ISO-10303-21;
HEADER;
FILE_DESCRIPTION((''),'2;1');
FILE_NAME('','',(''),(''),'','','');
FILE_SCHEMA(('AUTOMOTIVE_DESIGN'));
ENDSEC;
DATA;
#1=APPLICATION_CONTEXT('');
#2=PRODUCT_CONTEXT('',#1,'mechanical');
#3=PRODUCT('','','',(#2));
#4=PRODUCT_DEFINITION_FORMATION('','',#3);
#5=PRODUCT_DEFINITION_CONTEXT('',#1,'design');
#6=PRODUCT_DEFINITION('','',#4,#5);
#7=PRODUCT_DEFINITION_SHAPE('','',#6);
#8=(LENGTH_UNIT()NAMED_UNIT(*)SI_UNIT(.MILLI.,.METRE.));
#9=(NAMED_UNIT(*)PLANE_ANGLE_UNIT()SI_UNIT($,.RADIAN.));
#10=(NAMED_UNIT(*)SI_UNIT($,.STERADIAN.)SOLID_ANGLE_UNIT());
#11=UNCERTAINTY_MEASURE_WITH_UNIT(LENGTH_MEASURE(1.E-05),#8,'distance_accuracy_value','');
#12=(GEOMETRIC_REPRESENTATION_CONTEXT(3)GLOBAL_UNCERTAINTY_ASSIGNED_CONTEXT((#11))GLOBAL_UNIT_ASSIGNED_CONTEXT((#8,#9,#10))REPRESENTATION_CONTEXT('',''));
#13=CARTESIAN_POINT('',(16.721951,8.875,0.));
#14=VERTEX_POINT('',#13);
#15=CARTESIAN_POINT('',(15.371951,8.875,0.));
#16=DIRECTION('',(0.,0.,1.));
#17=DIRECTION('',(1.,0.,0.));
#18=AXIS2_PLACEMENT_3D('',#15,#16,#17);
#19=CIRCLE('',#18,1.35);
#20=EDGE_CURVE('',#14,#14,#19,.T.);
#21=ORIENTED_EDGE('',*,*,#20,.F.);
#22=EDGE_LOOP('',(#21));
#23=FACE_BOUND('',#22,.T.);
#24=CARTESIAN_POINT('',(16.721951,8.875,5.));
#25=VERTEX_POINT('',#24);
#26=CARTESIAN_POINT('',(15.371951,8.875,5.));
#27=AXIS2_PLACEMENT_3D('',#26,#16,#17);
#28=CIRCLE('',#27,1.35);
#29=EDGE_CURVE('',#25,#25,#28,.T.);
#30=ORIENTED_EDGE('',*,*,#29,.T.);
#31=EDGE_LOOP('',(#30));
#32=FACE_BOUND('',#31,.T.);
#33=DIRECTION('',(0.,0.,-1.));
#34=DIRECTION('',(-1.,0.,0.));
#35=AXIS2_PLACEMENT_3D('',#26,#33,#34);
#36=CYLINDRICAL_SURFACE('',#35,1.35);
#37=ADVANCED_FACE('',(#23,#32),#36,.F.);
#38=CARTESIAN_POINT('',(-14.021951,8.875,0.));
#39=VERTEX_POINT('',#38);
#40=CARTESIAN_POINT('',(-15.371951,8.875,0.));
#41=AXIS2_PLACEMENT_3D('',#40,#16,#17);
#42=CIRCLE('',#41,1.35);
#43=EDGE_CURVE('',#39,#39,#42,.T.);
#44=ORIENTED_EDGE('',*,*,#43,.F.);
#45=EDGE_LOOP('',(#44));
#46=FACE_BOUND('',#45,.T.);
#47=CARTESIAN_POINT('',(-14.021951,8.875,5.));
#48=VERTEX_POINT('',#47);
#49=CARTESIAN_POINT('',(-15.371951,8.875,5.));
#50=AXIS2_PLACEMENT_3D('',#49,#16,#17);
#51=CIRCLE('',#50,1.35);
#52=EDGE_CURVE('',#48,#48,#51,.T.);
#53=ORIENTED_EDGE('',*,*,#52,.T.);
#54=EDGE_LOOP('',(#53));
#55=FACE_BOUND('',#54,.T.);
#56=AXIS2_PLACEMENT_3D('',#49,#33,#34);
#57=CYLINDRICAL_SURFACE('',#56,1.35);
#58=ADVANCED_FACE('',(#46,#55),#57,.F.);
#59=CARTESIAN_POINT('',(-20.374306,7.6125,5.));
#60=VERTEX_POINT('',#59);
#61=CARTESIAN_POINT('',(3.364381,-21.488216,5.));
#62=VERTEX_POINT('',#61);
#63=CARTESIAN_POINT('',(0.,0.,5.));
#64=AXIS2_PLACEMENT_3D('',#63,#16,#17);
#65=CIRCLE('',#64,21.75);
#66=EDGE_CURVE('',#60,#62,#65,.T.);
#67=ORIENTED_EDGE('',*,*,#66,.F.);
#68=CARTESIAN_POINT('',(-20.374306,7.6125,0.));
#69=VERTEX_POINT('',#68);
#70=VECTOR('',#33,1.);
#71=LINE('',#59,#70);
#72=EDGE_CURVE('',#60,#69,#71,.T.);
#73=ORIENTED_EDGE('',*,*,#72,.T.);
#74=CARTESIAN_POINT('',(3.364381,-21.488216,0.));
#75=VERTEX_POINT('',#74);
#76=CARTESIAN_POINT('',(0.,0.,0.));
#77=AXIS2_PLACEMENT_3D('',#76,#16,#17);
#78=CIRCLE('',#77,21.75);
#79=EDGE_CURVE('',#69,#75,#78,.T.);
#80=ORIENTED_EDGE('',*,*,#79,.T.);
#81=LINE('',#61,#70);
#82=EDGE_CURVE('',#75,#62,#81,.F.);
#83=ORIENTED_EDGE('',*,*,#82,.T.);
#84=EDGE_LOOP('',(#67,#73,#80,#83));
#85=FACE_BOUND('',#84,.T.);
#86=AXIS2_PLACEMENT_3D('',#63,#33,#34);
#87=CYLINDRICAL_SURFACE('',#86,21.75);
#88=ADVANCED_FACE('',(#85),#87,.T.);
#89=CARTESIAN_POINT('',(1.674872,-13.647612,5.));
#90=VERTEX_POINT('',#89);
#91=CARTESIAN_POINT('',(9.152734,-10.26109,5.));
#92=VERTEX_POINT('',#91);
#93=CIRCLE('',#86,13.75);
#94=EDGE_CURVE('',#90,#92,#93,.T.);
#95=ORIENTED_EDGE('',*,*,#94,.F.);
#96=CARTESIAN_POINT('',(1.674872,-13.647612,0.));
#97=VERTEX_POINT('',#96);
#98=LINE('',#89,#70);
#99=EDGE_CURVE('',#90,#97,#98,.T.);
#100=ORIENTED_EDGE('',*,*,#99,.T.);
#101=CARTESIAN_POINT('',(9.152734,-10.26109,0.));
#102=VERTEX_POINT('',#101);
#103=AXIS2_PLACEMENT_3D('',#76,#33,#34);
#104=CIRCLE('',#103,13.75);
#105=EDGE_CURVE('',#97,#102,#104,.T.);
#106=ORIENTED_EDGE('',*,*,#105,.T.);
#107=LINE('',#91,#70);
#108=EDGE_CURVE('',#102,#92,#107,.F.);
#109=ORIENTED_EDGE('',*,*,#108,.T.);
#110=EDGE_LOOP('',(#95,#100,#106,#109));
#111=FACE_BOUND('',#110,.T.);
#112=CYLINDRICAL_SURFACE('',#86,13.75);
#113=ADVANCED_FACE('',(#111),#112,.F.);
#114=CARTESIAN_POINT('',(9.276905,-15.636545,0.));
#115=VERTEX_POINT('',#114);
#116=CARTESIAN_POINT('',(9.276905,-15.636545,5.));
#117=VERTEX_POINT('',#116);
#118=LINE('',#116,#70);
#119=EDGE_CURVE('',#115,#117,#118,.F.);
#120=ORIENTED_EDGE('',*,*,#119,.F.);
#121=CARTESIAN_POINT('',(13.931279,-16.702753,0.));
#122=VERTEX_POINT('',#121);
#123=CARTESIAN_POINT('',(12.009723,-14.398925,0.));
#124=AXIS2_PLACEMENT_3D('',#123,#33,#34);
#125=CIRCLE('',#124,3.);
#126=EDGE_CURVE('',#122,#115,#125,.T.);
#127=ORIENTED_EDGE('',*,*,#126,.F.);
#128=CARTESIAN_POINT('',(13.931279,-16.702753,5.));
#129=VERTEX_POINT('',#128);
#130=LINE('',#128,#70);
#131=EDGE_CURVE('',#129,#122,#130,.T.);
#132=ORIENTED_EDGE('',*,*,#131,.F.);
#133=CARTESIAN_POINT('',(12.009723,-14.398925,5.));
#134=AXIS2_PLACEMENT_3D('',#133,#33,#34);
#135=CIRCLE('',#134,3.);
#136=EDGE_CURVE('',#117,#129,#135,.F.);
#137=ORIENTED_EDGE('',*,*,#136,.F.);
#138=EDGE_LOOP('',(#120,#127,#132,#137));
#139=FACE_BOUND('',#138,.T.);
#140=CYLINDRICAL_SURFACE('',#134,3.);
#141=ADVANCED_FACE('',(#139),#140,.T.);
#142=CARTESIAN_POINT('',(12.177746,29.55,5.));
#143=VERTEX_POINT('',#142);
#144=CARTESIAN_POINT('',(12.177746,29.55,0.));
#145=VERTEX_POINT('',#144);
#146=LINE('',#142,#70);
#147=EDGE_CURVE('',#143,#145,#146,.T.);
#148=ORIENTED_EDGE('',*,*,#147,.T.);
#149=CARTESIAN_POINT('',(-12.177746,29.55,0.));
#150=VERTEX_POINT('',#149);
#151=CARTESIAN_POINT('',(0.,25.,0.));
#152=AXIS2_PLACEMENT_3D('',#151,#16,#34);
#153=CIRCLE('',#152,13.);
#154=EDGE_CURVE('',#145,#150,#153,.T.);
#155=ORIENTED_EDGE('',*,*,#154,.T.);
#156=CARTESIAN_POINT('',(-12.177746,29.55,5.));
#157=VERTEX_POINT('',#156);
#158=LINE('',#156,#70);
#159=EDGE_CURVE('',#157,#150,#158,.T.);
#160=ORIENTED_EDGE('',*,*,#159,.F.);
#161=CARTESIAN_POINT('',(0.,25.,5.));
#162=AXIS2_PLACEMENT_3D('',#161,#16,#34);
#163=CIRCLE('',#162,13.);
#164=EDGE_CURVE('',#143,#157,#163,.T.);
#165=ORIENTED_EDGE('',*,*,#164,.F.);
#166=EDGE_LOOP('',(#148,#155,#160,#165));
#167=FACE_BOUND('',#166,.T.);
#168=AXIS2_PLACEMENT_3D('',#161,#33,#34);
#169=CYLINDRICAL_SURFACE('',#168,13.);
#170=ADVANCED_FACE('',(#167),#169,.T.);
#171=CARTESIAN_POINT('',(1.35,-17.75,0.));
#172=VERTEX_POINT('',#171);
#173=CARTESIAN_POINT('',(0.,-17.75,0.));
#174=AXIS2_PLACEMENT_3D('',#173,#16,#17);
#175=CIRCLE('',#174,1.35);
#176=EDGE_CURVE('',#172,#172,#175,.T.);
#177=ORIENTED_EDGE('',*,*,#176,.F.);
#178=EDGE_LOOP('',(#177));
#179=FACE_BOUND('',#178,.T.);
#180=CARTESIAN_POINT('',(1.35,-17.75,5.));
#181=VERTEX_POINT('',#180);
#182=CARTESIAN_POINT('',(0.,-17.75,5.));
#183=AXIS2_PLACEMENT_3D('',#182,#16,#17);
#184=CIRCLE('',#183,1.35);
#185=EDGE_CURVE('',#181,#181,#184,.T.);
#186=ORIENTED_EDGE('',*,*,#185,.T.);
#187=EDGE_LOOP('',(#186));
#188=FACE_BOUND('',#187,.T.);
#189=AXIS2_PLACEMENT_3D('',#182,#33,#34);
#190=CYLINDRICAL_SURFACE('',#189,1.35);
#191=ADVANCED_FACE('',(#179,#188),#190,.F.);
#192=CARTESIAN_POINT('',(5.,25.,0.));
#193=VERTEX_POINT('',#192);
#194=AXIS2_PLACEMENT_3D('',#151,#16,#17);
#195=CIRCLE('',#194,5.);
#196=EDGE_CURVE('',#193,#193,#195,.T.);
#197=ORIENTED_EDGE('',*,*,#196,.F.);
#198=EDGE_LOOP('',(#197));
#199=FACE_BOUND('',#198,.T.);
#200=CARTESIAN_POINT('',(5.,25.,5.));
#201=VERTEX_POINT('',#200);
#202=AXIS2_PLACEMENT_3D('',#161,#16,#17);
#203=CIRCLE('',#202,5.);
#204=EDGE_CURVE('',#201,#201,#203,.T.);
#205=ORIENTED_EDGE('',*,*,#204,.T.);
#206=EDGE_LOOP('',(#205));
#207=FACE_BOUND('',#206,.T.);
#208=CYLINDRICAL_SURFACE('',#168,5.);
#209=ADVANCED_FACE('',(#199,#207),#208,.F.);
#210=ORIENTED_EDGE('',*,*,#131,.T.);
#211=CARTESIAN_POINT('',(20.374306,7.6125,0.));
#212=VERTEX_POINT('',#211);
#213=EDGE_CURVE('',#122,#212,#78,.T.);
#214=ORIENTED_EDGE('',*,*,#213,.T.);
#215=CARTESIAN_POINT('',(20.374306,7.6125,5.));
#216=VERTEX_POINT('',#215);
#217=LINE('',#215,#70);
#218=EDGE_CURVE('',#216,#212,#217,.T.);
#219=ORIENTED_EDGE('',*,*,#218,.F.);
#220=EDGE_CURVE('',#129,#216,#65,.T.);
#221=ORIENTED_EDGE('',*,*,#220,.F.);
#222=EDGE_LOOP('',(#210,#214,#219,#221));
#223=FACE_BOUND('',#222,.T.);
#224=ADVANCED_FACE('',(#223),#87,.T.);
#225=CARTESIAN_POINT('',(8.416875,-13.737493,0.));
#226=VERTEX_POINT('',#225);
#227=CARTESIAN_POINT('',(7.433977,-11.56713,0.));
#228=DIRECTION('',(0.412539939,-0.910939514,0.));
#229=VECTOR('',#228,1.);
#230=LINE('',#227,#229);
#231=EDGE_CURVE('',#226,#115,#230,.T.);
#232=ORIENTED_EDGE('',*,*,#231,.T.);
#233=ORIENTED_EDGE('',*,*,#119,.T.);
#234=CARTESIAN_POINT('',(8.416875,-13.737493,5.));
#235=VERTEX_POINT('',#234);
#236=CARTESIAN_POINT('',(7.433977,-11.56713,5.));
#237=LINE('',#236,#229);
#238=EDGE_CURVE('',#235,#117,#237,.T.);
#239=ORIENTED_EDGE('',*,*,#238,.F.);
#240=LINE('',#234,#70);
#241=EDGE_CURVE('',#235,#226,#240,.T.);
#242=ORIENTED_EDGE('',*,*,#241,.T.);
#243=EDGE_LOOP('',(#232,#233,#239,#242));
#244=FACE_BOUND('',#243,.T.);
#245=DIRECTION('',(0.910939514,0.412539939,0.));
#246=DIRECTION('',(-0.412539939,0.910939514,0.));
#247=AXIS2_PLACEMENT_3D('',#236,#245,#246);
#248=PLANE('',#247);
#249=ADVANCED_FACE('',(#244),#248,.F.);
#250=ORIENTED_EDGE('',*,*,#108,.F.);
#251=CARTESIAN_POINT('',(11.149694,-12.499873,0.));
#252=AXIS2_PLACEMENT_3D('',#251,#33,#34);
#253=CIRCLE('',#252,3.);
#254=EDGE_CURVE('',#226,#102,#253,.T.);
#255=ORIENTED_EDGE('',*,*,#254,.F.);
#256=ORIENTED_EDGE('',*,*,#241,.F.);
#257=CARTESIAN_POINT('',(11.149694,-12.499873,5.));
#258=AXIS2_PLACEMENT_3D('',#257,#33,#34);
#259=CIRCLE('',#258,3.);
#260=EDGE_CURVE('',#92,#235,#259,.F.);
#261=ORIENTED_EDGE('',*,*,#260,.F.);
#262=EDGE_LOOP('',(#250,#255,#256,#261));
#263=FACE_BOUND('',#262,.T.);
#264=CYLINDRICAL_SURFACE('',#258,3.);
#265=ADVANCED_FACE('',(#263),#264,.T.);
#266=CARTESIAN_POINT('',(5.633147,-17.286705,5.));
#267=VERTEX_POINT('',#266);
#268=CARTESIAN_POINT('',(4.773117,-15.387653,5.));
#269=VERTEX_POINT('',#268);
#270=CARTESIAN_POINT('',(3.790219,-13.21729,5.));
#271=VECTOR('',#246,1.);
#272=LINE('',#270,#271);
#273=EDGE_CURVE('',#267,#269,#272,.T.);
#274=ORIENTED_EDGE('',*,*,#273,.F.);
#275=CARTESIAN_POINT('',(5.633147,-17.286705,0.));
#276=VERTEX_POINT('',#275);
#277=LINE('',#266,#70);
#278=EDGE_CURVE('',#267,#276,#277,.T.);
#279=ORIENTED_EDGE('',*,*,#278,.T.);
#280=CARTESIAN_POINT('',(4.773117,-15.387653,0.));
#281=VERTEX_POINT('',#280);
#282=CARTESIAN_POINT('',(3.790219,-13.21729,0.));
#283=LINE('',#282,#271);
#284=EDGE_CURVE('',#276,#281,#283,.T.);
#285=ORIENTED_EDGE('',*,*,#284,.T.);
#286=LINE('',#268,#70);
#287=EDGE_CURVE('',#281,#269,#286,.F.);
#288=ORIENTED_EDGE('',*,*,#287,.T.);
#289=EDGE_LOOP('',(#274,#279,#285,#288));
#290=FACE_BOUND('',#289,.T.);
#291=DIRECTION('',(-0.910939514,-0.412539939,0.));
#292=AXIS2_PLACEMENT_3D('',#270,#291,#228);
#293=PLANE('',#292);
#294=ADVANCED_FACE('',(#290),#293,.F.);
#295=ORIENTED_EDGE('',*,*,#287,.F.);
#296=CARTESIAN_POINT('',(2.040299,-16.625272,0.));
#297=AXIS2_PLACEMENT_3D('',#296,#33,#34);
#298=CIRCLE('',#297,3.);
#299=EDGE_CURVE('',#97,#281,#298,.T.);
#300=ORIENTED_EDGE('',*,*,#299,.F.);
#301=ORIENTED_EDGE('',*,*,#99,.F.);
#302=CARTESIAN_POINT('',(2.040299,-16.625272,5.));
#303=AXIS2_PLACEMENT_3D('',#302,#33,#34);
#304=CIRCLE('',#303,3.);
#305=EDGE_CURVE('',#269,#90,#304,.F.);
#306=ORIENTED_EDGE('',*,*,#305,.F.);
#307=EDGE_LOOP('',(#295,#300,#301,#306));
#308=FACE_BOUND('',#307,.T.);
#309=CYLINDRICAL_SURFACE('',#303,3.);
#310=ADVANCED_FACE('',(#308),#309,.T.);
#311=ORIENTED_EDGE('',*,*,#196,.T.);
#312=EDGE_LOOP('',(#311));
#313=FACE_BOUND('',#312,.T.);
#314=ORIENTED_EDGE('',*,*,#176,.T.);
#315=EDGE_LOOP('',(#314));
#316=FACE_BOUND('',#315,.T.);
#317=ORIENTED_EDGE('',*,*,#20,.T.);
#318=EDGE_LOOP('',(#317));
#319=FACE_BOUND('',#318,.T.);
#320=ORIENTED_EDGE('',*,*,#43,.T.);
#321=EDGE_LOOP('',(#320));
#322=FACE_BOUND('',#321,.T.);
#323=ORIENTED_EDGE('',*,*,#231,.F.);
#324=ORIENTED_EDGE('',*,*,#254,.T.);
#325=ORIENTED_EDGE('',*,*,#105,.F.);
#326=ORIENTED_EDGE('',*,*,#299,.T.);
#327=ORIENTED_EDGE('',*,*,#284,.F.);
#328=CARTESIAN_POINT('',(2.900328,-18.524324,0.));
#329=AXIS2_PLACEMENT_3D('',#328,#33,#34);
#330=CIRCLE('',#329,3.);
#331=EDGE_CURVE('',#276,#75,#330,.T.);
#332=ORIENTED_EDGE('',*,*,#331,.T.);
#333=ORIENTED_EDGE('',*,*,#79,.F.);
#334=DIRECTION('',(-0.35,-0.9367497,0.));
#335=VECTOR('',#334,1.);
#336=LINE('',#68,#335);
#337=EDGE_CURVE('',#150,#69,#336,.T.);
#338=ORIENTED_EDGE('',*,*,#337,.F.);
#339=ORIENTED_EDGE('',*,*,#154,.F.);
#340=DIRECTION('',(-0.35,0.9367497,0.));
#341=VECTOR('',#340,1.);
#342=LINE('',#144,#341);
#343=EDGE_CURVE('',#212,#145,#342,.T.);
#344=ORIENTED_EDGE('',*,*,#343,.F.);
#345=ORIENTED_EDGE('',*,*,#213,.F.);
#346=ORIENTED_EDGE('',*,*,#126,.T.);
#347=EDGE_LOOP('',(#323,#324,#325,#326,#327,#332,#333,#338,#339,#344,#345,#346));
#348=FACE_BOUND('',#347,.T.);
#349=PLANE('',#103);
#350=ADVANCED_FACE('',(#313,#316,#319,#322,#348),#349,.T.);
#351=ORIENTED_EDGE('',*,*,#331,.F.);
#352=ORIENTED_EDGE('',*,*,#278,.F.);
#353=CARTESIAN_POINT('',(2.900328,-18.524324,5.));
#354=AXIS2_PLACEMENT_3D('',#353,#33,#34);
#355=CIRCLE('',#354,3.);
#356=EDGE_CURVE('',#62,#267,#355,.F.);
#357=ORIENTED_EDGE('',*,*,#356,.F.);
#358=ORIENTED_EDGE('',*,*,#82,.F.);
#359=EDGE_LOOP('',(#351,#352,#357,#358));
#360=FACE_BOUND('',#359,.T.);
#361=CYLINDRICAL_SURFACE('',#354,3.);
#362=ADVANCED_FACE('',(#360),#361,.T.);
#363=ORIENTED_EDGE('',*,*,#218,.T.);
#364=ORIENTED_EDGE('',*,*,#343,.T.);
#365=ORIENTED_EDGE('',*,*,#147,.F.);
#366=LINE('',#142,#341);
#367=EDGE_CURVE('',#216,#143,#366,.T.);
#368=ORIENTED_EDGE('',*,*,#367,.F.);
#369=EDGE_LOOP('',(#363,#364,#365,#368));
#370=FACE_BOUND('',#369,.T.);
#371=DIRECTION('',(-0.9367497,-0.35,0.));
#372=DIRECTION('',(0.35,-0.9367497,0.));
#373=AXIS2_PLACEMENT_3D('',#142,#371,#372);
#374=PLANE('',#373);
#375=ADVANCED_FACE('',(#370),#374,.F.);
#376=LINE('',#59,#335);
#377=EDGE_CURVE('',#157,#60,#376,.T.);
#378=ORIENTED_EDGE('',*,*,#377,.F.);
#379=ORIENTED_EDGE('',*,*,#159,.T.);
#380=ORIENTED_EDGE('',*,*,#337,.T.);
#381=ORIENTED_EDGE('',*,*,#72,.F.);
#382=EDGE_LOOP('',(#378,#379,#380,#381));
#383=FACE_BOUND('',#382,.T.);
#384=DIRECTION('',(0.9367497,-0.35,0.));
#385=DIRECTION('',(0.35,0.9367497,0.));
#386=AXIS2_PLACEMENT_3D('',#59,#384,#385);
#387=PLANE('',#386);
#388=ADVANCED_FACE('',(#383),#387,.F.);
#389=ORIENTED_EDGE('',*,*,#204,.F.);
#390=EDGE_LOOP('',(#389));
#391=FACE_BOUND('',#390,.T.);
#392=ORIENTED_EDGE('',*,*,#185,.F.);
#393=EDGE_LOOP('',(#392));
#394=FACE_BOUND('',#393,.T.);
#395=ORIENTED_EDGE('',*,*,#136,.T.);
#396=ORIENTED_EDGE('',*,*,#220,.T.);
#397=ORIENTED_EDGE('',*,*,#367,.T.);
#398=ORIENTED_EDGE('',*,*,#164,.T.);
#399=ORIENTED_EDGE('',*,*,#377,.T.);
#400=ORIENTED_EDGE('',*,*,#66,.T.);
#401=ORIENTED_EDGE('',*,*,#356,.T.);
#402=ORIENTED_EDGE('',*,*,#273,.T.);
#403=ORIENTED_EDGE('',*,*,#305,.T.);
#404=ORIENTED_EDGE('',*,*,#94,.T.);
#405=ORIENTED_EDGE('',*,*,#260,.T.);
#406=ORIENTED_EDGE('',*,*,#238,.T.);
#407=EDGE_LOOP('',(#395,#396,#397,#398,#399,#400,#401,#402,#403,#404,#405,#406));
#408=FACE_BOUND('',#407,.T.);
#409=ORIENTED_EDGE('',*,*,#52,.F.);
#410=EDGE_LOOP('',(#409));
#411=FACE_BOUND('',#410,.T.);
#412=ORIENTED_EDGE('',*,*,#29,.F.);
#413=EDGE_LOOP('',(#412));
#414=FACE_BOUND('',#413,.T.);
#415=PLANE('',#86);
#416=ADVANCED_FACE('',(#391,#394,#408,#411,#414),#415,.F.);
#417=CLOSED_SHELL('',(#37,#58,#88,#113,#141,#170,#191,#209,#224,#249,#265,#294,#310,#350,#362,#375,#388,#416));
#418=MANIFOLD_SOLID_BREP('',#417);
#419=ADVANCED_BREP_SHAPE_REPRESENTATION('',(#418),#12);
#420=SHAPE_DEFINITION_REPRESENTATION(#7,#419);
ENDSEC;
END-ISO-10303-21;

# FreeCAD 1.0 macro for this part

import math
import FreeCAD as App
import Part
import Sketcher


def edges_at(feature, points):
    """Names of the edges that pass closest to the given points."""
    edges = feature.Shape.Edges
    near = lambda p: min(range(len(edges)), key=lambda i: edges[i].distToShape(Part.Vertex(*p))[0])
    return sorted({f"Edge{near(p) + 1}" for p in points})

doc = App.newDocument("Part")
params = doc.addObject("Spreadsheet::Sheet", "Params")
for row, (alias, value) in enumerate([
    ("sketch1_diameter", "10 mm"),
    ("sketch1_radius", "13 mm"),
    ("sketch1_diameter2", "2.7 mm"),
    ("sketch1_radius2", "21.75 mm"),
    ("sketch1_radius3", "13.75 mm"),
    ("pad1_length", "5 mm"),
    ("fillet_radius", "3 mm"),
], start=1):
    params.set(f"A{row}", alias)
    params.set(f"B{row}", "=" + value)
    params.setAlias(f"B{row}", alias)

body = doc.addObject("PartDesign::Body", "Body")

# Sketch on XY plane
sketch1 = doc.addObject("Sketcher::SketchObject", "Sketch")
body.addObject(sketch1)
sketch1.AttachmentSupport = (doc.XY_Plane, [""])
sketch1.MapMode = "FlatFace"
sketch1.addGeometry([
    Part.LineSegment(App.Vector(7.4, -11.6, 0), App.Vector(10.8, -18.9, 0)),  # 0
    Part.ArcOfCircle(Part.Circle(App.Vector(0, 0, 0), App.Vector(0, 0, 1), 21.8), math.radians(-60), math.radians(20)),  # 1
    Part.LineSegment(App.Vector(20.4, 7.6, 0), App.Vector(12.2, 29.6, 0)),  # 2
    Part.ArcOfCircle(Part.Circle(App.Vector(0, 25, 0), App.Vector(0, 0, 1), 13), math.radians(20), math.radians(160)),  # 3
    Part.LineSegment(App.Vector(-12.2, 29.6, 0), App.Vector(-20.4, 7.6, 0)),  # 4
    Part.ArcOfCircle(Part.Circle(App.Vector(0, 0, 0), App.Vector(0, 0, 1), 21.8), math.radians(160), math.radians(289)),  # 5
    Part.LineSegment(App.Vector(7.1, -20.6, 0), App.Vector(3.8, -13.2, 0)),  # 6
    Part.ArcOfCircle(Part.Circle(App.Vector(0, 0, 0), App.Vector(0, 0, 1), 13.8), math.radians(-57), math.radians(286)),  # 7
    Part.Circle(App.Vector(0, -17.8, 0), App.Vector(0, 0, 1), 1.4),  # 8
    Part.Circle(App.Vector(-15.4, 8.9, 0), App.Vector(0, 0, 1), 1.4),  # 9
    Part.Circle(App.Vector(15.4, 8.9, 0), App.Vector(0, 0, 1), 1.4),  # 10
    Part.Circle(App.Vector(0, 25, 0), App.Vector(0, 0, 1), 5),  # 11
], False)
sketch1.addConstraint([
    Sketcher.Constraint("Coincident", 0, 2, 1, 1),
    Sketcher.Constraint("Tangent", 1, 2, 2, 1),
    Sketcher.Constraint("Tangent", 2, 2, 3, 1),
    Sketcher.Constraint("Tangent", 3, 2, 4, 1),
    Sketcher.Constraint("Tangent", 4, 2, 5, 1),
    Sketcher.Constraint("Coincident", 5, 2, 6, 1),
    Sketcher.Constraint("Coincident", 6, 2, 7, 2),
    Sketcher.Constraint("Coincident", 7, 1, 0, 1),
    Sketcher.Constraint("Coincident", 1, 3, -1, 1),
    Sketcher.Constraint("Coincident", 5, 3, -1, 1),
    Sketcher.Constraint("Coincident", 7, 3, -1, 1),
    Sketcher.Constraint("Coincident", 11, 3, 3, 3),
    Sketcher.Constraint("Equal", 1, 5),
    Sketcher.Constraint("Equal", 8, 9),
    Sketcher.Constraint("Equal", 9, 10),
    Sketcher.Constraint("Symmetric", 9, 3, 10, 3, -2),
    Sketcher.Constraint("PointOnObject", 3, 3, -2),
    Sketcher.Constraint("PointOnObject", 8, 3, -2),
    Sketcher.Constraint("Parallel", 0, 6),
    Sketcher.Constraint("Equal", 0, 6),
    Sketcher.Constraint("Diameter", 11, 10.0),
    Sketcher.Constraint("Radius", 3, 13.0),
    Sketcher.Constraint("Diameter", 8, 2.7),
    Sketcher.Constraint("Radius", 1, 21.75),
    Sketcher.Constraint("Radius", 7, 13.75),
    Sketcher.Constraint("DistanceY", -1, 1, 3, 3, 25.0),
    Sketcher.Constraint("DistanceY", 8, 3, -1, 1, 17.75),
    Sketcher.Constraint("DistanceY", -1, 1, 9, 3, 8.875),
    Sketcher.Constraint("DistanceX", 9, 3, 10, 3, 30.743902),
    Sketcher.Constraint("DistanceX", -1, 1, 5, 2, 7.112849),
    Sketcher.Constraint("DistanceX", -1, 1, 6, 2, 3.790219),
])
sketch1.setExpression("Constraints[20]", "Params.sketch1_diameter")
sketch1.setExpression("Constraints[21]", "Params.sketch1_radius")
sketch1.setExpression("Constraints[22]", "Params.sketch1_diameter2")
sketch1.setExpression("Constraints[23]", "Params.sketch1_radius2")
sketch1.setExpression("Constraints[24]", "Params.sketch1_radius3")
pad1 = doc.addObject("PartDesign::Pad", "Pad")
body.addObject(pad1)
pad1.Profile = sketch1
pad1.setExpression("Length", "Params.pad1_length")
doc.recompute()

fillet = doc.addObject("PartDesign::Fillet", "Fillet")
body.addObject(fillet)
fillet.Base = (pad1, edges_at(pad1, [
    (3.79, -13.217, 2.5),
    (7.113, -20.554, 2.5),
    (10.757, -18.904, 2.5),
    (7.434, -11.567, 2.5),
]))
fillet.setExpression("Radius", "Params.fillet_radius")

doc.recompute()
